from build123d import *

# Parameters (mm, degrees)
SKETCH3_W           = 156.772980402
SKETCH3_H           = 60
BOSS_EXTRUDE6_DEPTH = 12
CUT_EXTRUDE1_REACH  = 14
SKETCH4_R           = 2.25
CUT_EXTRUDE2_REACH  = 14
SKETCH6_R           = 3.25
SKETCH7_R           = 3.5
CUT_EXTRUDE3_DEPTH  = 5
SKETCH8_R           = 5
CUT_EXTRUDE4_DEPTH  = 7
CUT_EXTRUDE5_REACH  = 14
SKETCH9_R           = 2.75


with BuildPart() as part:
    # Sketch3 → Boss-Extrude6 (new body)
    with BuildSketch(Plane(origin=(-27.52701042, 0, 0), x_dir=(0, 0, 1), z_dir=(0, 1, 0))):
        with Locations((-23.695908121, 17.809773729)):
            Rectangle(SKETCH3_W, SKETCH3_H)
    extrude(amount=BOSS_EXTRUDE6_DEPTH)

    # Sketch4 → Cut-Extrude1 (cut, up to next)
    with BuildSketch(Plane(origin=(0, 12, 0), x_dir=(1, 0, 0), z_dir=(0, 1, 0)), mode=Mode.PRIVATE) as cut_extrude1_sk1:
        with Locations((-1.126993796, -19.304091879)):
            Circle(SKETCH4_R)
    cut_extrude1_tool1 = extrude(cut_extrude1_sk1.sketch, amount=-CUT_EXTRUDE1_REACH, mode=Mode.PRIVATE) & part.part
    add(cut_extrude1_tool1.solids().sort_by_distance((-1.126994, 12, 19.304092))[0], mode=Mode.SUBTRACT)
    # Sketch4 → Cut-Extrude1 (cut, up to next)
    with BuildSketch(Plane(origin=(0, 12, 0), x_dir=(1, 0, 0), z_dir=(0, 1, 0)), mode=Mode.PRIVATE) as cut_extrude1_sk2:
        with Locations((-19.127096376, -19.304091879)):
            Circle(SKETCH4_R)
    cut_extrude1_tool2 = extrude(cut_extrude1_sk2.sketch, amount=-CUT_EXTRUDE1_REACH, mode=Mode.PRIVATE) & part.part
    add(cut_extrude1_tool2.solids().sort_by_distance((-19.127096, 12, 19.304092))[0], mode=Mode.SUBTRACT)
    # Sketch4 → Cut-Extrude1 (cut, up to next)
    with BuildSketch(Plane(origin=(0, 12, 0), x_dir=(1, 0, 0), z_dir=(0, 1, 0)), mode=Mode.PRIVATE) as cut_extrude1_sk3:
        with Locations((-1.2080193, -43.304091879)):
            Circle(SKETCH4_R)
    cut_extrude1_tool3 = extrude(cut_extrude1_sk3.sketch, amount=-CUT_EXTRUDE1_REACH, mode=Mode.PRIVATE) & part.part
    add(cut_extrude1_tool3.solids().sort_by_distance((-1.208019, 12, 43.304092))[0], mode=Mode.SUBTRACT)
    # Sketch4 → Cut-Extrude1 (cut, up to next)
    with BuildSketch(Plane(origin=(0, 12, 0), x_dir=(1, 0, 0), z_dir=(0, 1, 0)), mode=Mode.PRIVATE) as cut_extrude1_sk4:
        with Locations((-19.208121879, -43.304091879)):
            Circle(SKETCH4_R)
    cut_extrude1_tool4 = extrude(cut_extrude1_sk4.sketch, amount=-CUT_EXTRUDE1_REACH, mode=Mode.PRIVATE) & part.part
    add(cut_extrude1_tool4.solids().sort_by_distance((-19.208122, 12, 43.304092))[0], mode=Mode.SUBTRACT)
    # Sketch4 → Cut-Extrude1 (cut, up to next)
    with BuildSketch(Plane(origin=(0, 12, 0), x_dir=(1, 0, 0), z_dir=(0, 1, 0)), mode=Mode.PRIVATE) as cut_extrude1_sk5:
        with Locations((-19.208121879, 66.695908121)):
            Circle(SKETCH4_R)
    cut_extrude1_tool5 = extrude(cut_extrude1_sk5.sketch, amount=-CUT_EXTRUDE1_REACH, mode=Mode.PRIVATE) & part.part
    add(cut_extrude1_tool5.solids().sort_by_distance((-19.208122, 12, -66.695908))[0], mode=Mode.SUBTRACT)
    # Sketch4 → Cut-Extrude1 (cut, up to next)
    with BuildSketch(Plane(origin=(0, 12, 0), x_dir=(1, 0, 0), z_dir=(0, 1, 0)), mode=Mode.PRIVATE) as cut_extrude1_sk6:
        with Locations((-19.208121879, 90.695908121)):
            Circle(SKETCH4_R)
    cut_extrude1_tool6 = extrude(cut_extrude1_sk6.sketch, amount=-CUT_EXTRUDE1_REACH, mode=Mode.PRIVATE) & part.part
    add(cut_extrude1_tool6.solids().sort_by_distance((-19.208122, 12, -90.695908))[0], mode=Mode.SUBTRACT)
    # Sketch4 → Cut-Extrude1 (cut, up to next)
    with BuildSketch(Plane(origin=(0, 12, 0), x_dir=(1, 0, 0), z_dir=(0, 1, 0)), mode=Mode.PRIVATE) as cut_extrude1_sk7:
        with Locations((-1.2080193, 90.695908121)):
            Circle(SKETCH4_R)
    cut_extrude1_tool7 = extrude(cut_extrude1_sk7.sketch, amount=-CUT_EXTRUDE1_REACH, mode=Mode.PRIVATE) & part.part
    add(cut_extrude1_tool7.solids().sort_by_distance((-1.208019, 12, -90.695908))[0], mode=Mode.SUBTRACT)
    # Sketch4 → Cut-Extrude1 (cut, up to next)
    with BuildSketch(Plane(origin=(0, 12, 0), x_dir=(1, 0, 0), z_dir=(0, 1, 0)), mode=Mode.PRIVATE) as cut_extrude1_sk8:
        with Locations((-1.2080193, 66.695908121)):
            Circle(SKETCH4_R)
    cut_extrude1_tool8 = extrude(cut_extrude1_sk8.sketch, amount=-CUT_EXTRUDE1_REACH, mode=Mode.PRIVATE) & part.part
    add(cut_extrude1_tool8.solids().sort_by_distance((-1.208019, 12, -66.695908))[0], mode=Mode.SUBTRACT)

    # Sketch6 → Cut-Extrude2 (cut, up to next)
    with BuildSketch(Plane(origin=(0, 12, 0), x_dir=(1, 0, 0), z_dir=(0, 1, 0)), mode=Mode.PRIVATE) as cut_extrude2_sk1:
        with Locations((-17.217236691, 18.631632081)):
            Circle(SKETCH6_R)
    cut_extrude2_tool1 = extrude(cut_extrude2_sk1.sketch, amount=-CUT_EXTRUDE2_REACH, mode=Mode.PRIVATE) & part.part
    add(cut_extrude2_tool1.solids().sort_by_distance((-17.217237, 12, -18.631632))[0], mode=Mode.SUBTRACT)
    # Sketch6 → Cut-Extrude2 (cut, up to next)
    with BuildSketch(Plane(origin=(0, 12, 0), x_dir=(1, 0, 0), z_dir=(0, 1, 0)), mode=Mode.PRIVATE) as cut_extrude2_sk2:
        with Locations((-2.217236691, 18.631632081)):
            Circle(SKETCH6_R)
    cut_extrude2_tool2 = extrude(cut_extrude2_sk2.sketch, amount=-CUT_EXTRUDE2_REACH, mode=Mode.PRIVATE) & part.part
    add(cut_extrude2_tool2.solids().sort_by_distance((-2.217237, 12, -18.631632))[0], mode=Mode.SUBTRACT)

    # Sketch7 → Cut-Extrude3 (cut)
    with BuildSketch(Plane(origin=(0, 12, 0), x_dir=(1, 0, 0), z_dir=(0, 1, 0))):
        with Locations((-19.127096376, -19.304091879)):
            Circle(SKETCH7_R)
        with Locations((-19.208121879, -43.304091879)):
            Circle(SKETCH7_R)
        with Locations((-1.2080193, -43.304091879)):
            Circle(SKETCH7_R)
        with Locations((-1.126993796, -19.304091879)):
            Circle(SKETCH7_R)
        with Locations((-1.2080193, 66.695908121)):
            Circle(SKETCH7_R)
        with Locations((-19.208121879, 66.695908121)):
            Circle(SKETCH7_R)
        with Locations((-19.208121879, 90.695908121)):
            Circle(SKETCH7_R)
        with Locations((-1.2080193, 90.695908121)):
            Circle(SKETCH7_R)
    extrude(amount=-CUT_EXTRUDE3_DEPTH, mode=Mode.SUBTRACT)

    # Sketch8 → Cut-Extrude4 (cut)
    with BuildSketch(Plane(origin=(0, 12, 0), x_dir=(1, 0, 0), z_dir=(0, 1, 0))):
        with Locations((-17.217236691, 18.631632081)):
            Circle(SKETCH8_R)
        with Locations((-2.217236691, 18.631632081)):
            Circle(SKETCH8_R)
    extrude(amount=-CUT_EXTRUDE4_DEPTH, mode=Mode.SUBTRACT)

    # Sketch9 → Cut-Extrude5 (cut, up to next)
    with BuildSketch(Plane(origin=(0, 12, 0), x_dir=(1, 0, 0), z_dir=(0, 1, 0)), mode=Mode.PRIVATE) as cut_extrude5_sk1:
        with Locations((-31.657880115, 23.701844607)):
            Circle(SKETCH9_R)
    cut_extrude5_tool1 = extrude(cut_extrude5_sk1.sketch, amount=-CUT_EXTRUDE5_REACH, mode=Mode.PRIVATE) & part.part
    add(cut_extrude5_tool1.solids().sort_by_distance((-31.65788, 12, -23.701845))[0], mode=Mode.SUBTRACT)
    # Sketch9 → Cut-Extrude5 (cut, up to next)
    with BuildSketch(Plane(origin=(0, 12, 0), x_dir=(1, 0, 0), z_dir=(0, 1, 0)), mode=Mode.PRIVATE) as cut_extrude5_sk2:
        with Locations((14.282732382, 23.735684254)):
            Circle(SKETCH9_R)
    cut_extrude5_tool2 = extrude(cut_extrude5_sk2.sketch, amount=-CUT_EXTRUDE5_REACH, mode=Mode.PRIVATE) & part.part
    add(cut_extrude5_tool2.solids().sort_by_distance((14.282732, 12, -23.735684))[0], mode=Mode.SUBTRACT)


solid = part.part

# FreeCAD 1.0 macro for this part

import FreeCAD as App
import Part
import Sketcher


def add_polygon(sketch, points):
    """Adds a closed chain of lines whose ends are joined by coincident constraints."""
    first, n = sketch.GeometryCount, len(points)
    for a, b in zip(points, points[1:] + points[:1]):
        sketch.addGeometry(Part.LineSegment(App.Vector(*a, 0), App.Vector(*b, 0)), False)
    for i in range(n):
        sketch.addConstraint(Sketcher.Constraint("Coincident", first + i, 2, first + (i + 1) % n, 1))

doc = App.newDocument("Part")
params = doc.addObject("Spreadsheet::Sheet", "Params")
for row, (alias, value) in enumerate([
    ("sketch1_width", "60 mm"),
    ("pad1_length", "12 mm"),
    ("sketch2_diameter", "4.5 mm"),
    ("sketch3_diameter", "4.5 mm"),
    ("sketch4_diameter", "4.5 mm"),
    ("sketch5_diameter", "4.5 mm"),
    ("sketch6_diameter", "4.5 mm"),
    ("sketch7_diameter", "4.5 mm"),
    ("sketch8_diameter", "4.5 mm"),
    ("sketch9_diameter", "4.5 mm"),
    ("sketch10_diameter", "6.5 mm"),
    ("sketch11_diameter", "6.5 mm"),
    ("sketch12_diameter", "7 mm"),
    ("pocket11_length", "5 mm"),
    ("sketch13_diameter", "10 mm"),
    ("pocket12_length", "7 mm"),
    ("sketch14_diameter", "5.5 mm"),
    ("sketch15_diameter", "5.5 mm"),
], start=1):
    params.set(f"A{row}", alias)
    params.set(f"B{row}", "=" + value)
    params.setAlias(f"B{row}", alias)

body = doc.addObject("PartDesign::Body", "Body")

# Sketch on XZ plane
sketch1 = doc.addObject("Sketcher::SketchObject", "Sketch")
body.addObject(sketch1)
sketch1.AttachmentSupport = (doc.XZ_Plane, [""])
sketch1.MapMode = "FlatFace"
add_polygon(sketch1, [(20, -102), (-40, -102), (-40, 55), (20, 55)])  # lines 0-3
sketch1.addConstraint([
    Sketcher.Constraint("Horizontal", 0),
    Sketcher.Constraint("Vertical", 1),
    Sketcher.Constraint("Horizontal", 2),
    Sketcher.Constraint("Vertical", 3),
    Sketcher.Constraint("DistanceX", 0, 2, 0, 1, 60.0),
    Sketcher.Constraint("DistanceY", 1, 1, 1, 2, 156.77298),
    Sketcher.Constraint("DistanceY", 0, 2, -1, 1, 102.082398),
    Sketcher.Constraint("DistanceX", 0, 2, -1, 1, 39.717237),
])
sketch1.setExpression("Constraints[8]", "Params.sketch1_width")
pad1 = doc.addObject("PartDesign::Pad", "Pad")
body.addObject(pad1)
pad1.Profile = sketch1
pad1.setExpression("Length", "Params.pad1_length")
pad1.Reversed = True

# Sketch on XZ plane
sketch2 = doc.addObject("Sketcher::SketchObject", "Sketch001")
body.addObject(sketch2)
sketch2.AttachmentSupport = (doc.XZ_Plane, [""])
sketch2.MapMode = "FlatFace"
sketch2.AttachmentOffset = App.Placement(App.Vector(0, 0, -12), App.Rotation())
sketch2.addGeometry(Part.Circle(App.Vector(-1.1, 19.3, 0), App.Vector(0, 0, 1), 2.2), False)
sketch2.addConstraint([
    Sketcher.Constraint("Diameter", 0, 4.5),
    Sketcher.Constraint("DistanceY", -1, 1, 0, 3, 19.304092),
    Sketcher.Constraint("DistanceX", 0, 3, -1, 1, 1.126994),
])
sketch2.setExpression("Constraints[0]", "Params.sketch2_diameter")
pocket1 = doc.addObject("PartDesign::Pocket", "Pocket")
body.addObject(pocket1)
pocket1.Profile = sketch2
pocket1.Type = "UpToFirst"
pocket1.Reversed = True

# Sketch on XZ plane
sketch3 = doc.addObject("Sketcher::SketchObject", "Sketch002")
body.addObject(sketch3)
sketch3.AttachmentSupport = (doc.XZ_Plane, [""])
sketch3.MapMode = "FlatFace"
sketch3.AttachmentOffset = App.Placement(App.Vector(0, 0, -12), App.Rotation())
sketch3.addGeometry(Part.Circle(App.Vector(-19.1, 19.3, 0), App.Vector(0, 0, 1), 2.2), False)
sketch3.addConstraint([
    Sketcher.Constraint("Diameter", 0, 4.5),
    Sketcher.Constraint("DistanceY", -1, 1, 0, 3, 19.304092),
    Sketcher.Constraint("DistanceX", 0, 3, -1, 1, 19.127096),
])
sketch3.setExpression("Constraints[0]", "Params.sketch3_diameter")
pocket2 = doc.addObject("PartDesign::Pocket", "Pocket001")
body.addObject(pocket2)
pocket2.Profile = sketch3
pocket2.Type = "UpToFirst"
pocket2.Reversed = True

# Sketch on XZ plane
sketch4 = doc.addObject("Sketcher::SketchObject", "Sketch003")
body.addObject(sketch4)
sketch4.AttachmentSupport = (doc.XZ_Plane, [""])
sketch4.MapMode = "FlatFace"
sketch4.AttachmentOffset = App.Placement(App.Vector(0, 0, -12), App.Rotation())
sketch4.addGeometry(Part.Circle(App.Vector(-1.2, 43.3, 0), App.Vector(0, 0, 1), 2.2), False)
sketch4.addConstraint([
    Sketcher.Constraint("Diameter", 0, 4.5),
    Sketcher.Constraint("DistanceX", 0, 3, -1, 1, 1.208019),
    Sketcher.Constraint("DistanceY", -1, 1, 0, 3, 43.304092),
])
sketch4.setExpression("Constraints[0]", "Params.sketch4_diameter")
pocket3 = doc.addObject("PartDesign::Pocket", "Pocket002")
body.addObject(pocket3)
pocket3.Profile = sketch4
pocket3.Type = "UpToFirst"
pocket3.Reversed = True

# Sketch on XZ plane
sketch5 = doc.addObject("Sketcher::SketchObject", "Sketch004")
body.addObject(sketch5)
sketch5.AttachmentSupport = (doc.XZ_Plane, [""])
sketch5.MapMode = "FlatFace"
sketch5.AttachmentOffset = App.Placement(App.Vector(0, 0, -12), App.Rotation())
sketch5.addGeometry(Part.Circle(App.Vector(-19.2, 43.3, 0), App.Vector(0, 0, 1), 2.2), False)
sketch5.addConstraint([
    Sketcher.Constraint("Diameter", 0, 4.5),
    Sketcher.Constraint("DistanceX", 0, 3, -1, 1, 19.208122),
    Sketcher.Constraint("DistanceY", -1, 1, 0, 3, 43.304092),
])
sketch5.setExpression("Constraints[0]", "Params.sketch5_diameter")
pocket4 = doc.addObject("PartDesign::Pocket", "Pocket003")
body.addObject(pocket4)
pocket4.Profile = sketch5
pocket4.Type = "UpToFirst"
pocket4.Reversed = True

# Sketch on XZ plane
sketch6 = doc.addObject("Sketcher::SketchObject", "Sketch005")
body.addObject(sketch6)
sketch6.AttachmentSupport = (doc.XZ_Plane, [""])
sketch6.MapMode = "FlatFace"
sketch6.AttachmentOffset = App.Placement(App.Vector(0, 0, -12), App.Rotation())
sketch6.addGeometry(Part.Circle(App.Vector(-19.2, -66.7, 0), App.Vector(0, 0, 1), 2.2), False)
sketch6.addConstraint([
    Sketcher.Constraint("Diameter", 0, 4.5),
    Sketcher.Constraint("DistanceX", 0, 3, -1, 1, 19.208122),
    Sketcher.Constraint("DistanceY", 0, 3, -1, 1, 66.695908),
])
sketch6.setExpression("Constraints[0]", "Params.sketch6_diameter")
pocket5 = doc.addObject("PartDesign::Pocket", "Pocket004")
body.addObject(pocket5)
pocket5.Profile = sketch6
pocket5.Type = "UpToFirst"
pocket5.Reversed = True

# Sketch on XZ plane
sketch7 = doc.addObject("Sketcher::SketchObject", "Sketch006")
body.addObject(sketch7)
sketch7.AttachmentSupport = (doc.XZ_Plane, [""])
sketch7.MapMode = "FlatFace"
sketch7.AttachmentOffset = App.Placement(App.Vector(0, 0, -12), App.Rotation())
sketch7.addGeometry(Part.Circle(App.Vector(-19.2, -90.7, 0), App.Vector(0, 0, 1), 2.2), False)
sketch7.addConstraint([
    Sketcher.Constraint("Diameter", 0, 4.5),
    Sketcher.Constraint("DistanceX", 0, 3, -1, 1, 19.208122),
    Sketcher.Constraint("DistanceY", 0, 3, -1, 1, 90.695908),
])
sketch7.setExpression("Constraints[0]", "Params.sketch7_diameter")
pocket6 = doc.addObject("PartDesign::Pocket", "Pocket005")
body.addObject(pocket6)
pocket6.Profile = sketch7
pocket6.Type = "UpToFirst"
pocket6.Reversed = True

# Sketch on XZ plane
sketch8 = doc.addObject("Sketcher::SketchObject", "Sketch007")
body.addObject(sketch8)
sketch8.AttachmentSupport = (doc.XZ_Plane, [""])
sketch8.MapMode = "FlatFace"
sketch8.AttachmentOffset = App.Placement(App.Vector(0, 0, -12), App.Rotation())
sketch8.addGeometry(Part.Circle(App.Vector(-1.2, -90.7, 0), App.Vector(0, 0, 1), 2.2), False)
sketch8.addConstraint([
    Sketcher.Constraint("Diameter", 0, 4.5),
    Sketcher.Constraint("DistanceX", 0, 3, -1, 1, 1.208019),
    Sketcher.Constraint("DistanceY", 0, 3, -1, 1, 90.695908),
])
sketch8.setExpression("Constraints[0]", "Params.sketch8_diameter")
pocket7 = doc.addObject("PartDesign::Pocket", "Pocket006")
body.addObject(pocket7)
pocket7.Profile = sketch8
pocket7.Type = "UpToFirst"
pocket7.Reversed = True

# Sketch on XZ plane
sketch9 = doc.addObject("Sketcher::SketchObject", "Sketch008")
body.addObject(sketch9)
sketch9.AttachmentSupport = (doc.XZ_Plane, [""])
sketch9.MapMode = "FlatFace"
sketch9.AttachmentOffset = App.Placement(App.Vector(0, 0, -12), App.Rotation())
sketch9.addGeometry(Part.Circle(App.Vector(-1.2, -66.7, 0), App.Vector(0, 0, 1), 2.2), False)
sketch9.addConstraint([
    Sketcher.Constraint("Diameter", 0, 4.5),
    Sketcher.Constraint("DistanceX", 0, 3, -1, 1, 1.208019),
    Sketcher.Constraint("DistanceY", 0, 3, -1, 1, 66.695908),
])
sketch9.setExpression("Constraints[0]", "Params.sketch9_diameter")
pocket8 = doc.addObject("PartDesign::Pocket", "Pocket007")
body.addObject(pocket8)
pocket8.Profile = sketch9
pocket8.Type = "UpToFirst"
pocket8.Reversed = True

# Sketch on XZ plane
sketch10 = doc.addObject("Sketcher::SketchObject", "Sketch009")
body.addObject(sketch10)
sketch10.AttachmentSupport = (doc.XZ_Plane, [""])
sketch10.MapMode = "FlatFace"
sketch10.AttachmentOffset = App.Placement(App.Vector(0, 0, -12), App.Rotation())
sketch10.addGeometry(Part.Circle(App.Vector(-17.2, -18.6, 0), App.Vector(0, 0, 1), 3.2), False)
sketch10.addConstraint([
    Sketcher.Constraint("Diameter", 0, 6.5),
    Sketcher.Constraint("DistanceX", 0, 3, -1, 1, 17.217237),
    Sketcher.Constraint("DistanceY", 0, 3, -1, 1, 18.631632),
])
sketch10.setExpression("Constraints[0]", "Params.sketch10_diameter")
pocket9 = doc.addObject("PartDesign::Pocket", "Pocket008")
body.addObject(pocket9)
pocket9.Profile = sketch10
pocket9.Type = "UpToFirst"
pocket9.Reversed = True

# Sketch on XZ plane
sketch11 = doc.addObject("Sketcher::SketchObject", "Sketch010")
body.addObject(sketch11)
sketch11.AttachmentSupport = (doc.XZ_Plane, [""])
sketch11.MapMode = "FlatFace"
sketch11.AttachmentOffset = App.Placement(App.Vector(0, 0, -12), App.Rotation())
sketch11.addGeometry(Part.Circle(App.Vector(-2.2, -18.6, 0), App.Vector(0, 0, 1), 3.2), False)
sketch11.addConstraint([
    Sketcher.Constraint("Diameter", 0, 6.5),
    Sketcher.Constraint("DistanceX", 0, 3, -1, 1, 2.217237),
    Sketcher.Constraint("DistanceY", 0, 3, -1, 1, 18.631632),
])
sketch11.setExpression("Constraints[0]", "Params.sketch11_diameter")
pocket10 = doc.addObject("PartDesign::Pocket", "Pocket009")
body.addObject(pocket10)
pocket10.Profile = sketch11
pocket10.Type = "UpToFirst"
pocket10.Reversed = True

# Sketch on XZ plane
sketch12 = doc.addObject("Sketcher::SketchObject", "Sketch011")
body.addObject(sketch12)
sketch12.AttachmentSupport = (doc.XZ_Plane, [""])
sketch12.MapMode = "FlatFace"
sketch12.AttachmentOffset = App.Placement(App.Vector(0, 0, -12), App.Rotation())
sketch12.addGeometry([
    Part.Circle(App.Vector(-19.1, 19.3, 0), App.Vector(0, 0, 1), 3.5),  # 0
    Part.Circle(App.Vector(-19.2, 43.3, 0), App.Vector(0, 0, 1), 3.5),  # 1
    Part.Circle(App.Vector(-1.2, 43.3, 0), App.Vector(0, 0, 1), 3.5),  # 2
    Part.Circle(App.Vector(-1.1, 19.3, 0), App.Vector(0, 0, 1), 3.5),  # 3
    Part.Circle(App.Vector(-1.2, -66.7, 0), App.Vector(0, 0, 1), 3.5),  # 4
    Part.Circle(App.Vector(-19.2, -66.7, 0), App.Vector(0, 0, 1), 3.5),  # 5
    Part.Circle(App.Vector(-19.2, -90.7, 0), App.Vector(0, 0, 1), 3.5),  # 6
    Part.Circle(App.Vector(-1.2, -90.7, 0), App.Vector(0, 0, 1), 3.5),  # 7
], False)
sketch12.addConstraint([
    Sketcher.Constraint("Equal", 0, 1),
    Sketcher.Constraint("Equal", 1, 2),
    Sketcher.Constraint("Equal", 2, 3),
    Sketcher.Constraint("Equal", 3, 4),
    Sketcher.Constraint("Equal", 4, 5),
    Sketcher.Constraint("Equal", 5, 6),
    Sketcher.Constraint("Equal", 6, 7),
    Sketcher.Constraint("Horizontal", 1, 3, 2, 3),
    Sketcher.Constraint("Horizontal", 0, 3, 3, 3),
    Sketcher.Constraint("Horizontal", 4, 3, 5, 3),
    Sketcher.Constraint("Horizontal", 6, 3, 7, 3),
    Sketcher.Constraint("Vertical", 2, 3, 4, 3),
    Sketcher.Constraint("Vertical", 1, 3, 5, 3),
    Sketcher.Constraint("Vertical", 5, 3, 6, 3),
    Sketcher.Constraint("Vertical", 4, 3, 7, 3),
    Sketcher.Constraint("Diameter", 0, 7.0),
    Sketcher.Constraint("DistanceY", 0, 3, 1, 3, 24.0),
    Sketcher.Constraint("DistanceY", 4, 3, 3, 3, 86.0),
    Sketcher.Constraint("DistanceY", 6, 3, 5, 3, 24.0),
    Sketcher.Constraint("DistanceY", -1, 1, 0, 3, 19.304092),
    Sketcher.Constraint("DistanceX", 1, 3, -1, 1, 19.208122),
    Sketcher.Constraint("DistanceX", 2, 3, -1, 1, 1.208019),
    Sketcher.Constraint("DistanceX", 1, 3, 3, 3, 18.081128),
    Sketcher.Constraint("DistanceX", 0, 3, -1, 1, 19.127096),
])
sketch12.setExpression("Constraints[15]", "Params.sketch12_diameter")
pocket11 = doc.addObject("PartDesign::Pocket", "Pocket010")
body.addObject(pocket11)
pocket11.Profile = sketch12
pocket11.setExpression("Length", "Params.pocket11_length")
pocket11.Reversed = True

# Sketch on XZ plane
sketch13 = doc.addObject("Sketcher::SketchObject", "Sketch012")
body.addObject(sketch13)
sketch13.AttachmentSupport = (doc.XZ_Plane, [""])
sketch13.MapMode = "FlatFace"
sketch13.AttachmentOffset = App.Placement(App.Vector(0, 0, -12), App.Rotation())
sketch13.addGeometry([
    Part.Circle(App.Vector(-17, -19, 0), App.Vector(0, 0, 1), 5),
    Part.Circle(App.Vector(-2, -19, 0), App.Vector(0, 0, 1), 5),
], False)
sketch13.addConstraint([
    Sketcher.Constraint("Equal", 0, 1),
    Sketcher.Constraint("Horizontal", 0, 3, 1, 3),
    Sketcher.Constraint("Diameter", 0, 10.0),
    Sketcher.Constraint("DistanceX", 0, 3, 1, 3, 15.0),
    Sketcher.Constraint("DistanceX", 0, 3, -1, 1, 17.217237),
    Sketcher.Constraint("DistanceY", 0, 3, -1, 1, 18.631632),
])
sketch13.setExpression("Constraints[2]", "Params.sketch13_diameter")
pocket12 = doc.addObject("PartDesign::Pocket", "Pocket011")
body.addObject(pocket12)
pocket12.Profile = sketch13
pocket12.setExpression("Length", "Params.pocket12_length")
pocket12.Reversed = True

# Sketch on XZ plane
sketch14 = doc.addObject("Sketcher::SketchObject", "Sketch013")
body.addObject(sketch14)
sketch14.AttachmentSupport = (doc.XZ_Plane, [""])
sketch14.MapMode = "FlatFace"
sketch14.AttachmentOffset = App.Placement(App.Vector(0, 0, -12), App.Rotation())
sketch14.addGeometry(Part.Circle(App.Vector(-31.7, -23.7, 0), App.Vector(0, 0, 1), 2.8), False)
sketch14.addConstraint([
    Sketcher.Constraint("Diameter", 0, 5.5),
    Sketcher.Constraint("DistanceX", 0, 3, -1, 1, 31.65788),
    Sketcher.Constraint("DistanceY", 0, 3, -1, 1, 23.701845),
])
sketch14.setExpression("Constraints[0]", "Params.sketch14_diameter")
pocket13 = doc.addObject("PartDesign::Pocket", "Pocket012")
body.addObject(pocket13)
pocket13.Profile = sketch14
pocket13.Type = "UpToFirst"
pocket13.Reversed = True

# Sketch on XZ plane
sketch15 = doc.addObject("Sketcher::SketchObject", "Sketch014")
body.addObject(sketch15)
sketch15.AttachmentSupport = (doc.XZ_Plane, [""])
sketch15.MapMode = "FlatFace"
sketch15.AttachmentOffset = App.Placement(App.Vector(0, 0, -12), App.Rotation())
sketch15.addGeometry(Part.Circle(App.Vector(14.3, -23.7, 0), App.Vector(0, 0, 1), 2.8), False)
sketch15.addConstraint([
    Sketcher.Constraint("Diameter", 0, 5.5),
    Sketcher.Constraint("DistanceX", -1, 1, 0, 3, 14.282732),
    Sketcher.Constraint("DistanceY", 0, 3, -1, 1, 23.735684),
])
sketch15.setExpression("Constraints[0]", "Params.sketch15_diameter")
pocket14 = doc.addObject("PartDesign::Pocket", "Pocket013")
body.addObject(pocket14)
pocket14.Profile = sketch15
pocket14.Type = "UpToFirst"
pocket14.Reversed = True

doc.recompute()
